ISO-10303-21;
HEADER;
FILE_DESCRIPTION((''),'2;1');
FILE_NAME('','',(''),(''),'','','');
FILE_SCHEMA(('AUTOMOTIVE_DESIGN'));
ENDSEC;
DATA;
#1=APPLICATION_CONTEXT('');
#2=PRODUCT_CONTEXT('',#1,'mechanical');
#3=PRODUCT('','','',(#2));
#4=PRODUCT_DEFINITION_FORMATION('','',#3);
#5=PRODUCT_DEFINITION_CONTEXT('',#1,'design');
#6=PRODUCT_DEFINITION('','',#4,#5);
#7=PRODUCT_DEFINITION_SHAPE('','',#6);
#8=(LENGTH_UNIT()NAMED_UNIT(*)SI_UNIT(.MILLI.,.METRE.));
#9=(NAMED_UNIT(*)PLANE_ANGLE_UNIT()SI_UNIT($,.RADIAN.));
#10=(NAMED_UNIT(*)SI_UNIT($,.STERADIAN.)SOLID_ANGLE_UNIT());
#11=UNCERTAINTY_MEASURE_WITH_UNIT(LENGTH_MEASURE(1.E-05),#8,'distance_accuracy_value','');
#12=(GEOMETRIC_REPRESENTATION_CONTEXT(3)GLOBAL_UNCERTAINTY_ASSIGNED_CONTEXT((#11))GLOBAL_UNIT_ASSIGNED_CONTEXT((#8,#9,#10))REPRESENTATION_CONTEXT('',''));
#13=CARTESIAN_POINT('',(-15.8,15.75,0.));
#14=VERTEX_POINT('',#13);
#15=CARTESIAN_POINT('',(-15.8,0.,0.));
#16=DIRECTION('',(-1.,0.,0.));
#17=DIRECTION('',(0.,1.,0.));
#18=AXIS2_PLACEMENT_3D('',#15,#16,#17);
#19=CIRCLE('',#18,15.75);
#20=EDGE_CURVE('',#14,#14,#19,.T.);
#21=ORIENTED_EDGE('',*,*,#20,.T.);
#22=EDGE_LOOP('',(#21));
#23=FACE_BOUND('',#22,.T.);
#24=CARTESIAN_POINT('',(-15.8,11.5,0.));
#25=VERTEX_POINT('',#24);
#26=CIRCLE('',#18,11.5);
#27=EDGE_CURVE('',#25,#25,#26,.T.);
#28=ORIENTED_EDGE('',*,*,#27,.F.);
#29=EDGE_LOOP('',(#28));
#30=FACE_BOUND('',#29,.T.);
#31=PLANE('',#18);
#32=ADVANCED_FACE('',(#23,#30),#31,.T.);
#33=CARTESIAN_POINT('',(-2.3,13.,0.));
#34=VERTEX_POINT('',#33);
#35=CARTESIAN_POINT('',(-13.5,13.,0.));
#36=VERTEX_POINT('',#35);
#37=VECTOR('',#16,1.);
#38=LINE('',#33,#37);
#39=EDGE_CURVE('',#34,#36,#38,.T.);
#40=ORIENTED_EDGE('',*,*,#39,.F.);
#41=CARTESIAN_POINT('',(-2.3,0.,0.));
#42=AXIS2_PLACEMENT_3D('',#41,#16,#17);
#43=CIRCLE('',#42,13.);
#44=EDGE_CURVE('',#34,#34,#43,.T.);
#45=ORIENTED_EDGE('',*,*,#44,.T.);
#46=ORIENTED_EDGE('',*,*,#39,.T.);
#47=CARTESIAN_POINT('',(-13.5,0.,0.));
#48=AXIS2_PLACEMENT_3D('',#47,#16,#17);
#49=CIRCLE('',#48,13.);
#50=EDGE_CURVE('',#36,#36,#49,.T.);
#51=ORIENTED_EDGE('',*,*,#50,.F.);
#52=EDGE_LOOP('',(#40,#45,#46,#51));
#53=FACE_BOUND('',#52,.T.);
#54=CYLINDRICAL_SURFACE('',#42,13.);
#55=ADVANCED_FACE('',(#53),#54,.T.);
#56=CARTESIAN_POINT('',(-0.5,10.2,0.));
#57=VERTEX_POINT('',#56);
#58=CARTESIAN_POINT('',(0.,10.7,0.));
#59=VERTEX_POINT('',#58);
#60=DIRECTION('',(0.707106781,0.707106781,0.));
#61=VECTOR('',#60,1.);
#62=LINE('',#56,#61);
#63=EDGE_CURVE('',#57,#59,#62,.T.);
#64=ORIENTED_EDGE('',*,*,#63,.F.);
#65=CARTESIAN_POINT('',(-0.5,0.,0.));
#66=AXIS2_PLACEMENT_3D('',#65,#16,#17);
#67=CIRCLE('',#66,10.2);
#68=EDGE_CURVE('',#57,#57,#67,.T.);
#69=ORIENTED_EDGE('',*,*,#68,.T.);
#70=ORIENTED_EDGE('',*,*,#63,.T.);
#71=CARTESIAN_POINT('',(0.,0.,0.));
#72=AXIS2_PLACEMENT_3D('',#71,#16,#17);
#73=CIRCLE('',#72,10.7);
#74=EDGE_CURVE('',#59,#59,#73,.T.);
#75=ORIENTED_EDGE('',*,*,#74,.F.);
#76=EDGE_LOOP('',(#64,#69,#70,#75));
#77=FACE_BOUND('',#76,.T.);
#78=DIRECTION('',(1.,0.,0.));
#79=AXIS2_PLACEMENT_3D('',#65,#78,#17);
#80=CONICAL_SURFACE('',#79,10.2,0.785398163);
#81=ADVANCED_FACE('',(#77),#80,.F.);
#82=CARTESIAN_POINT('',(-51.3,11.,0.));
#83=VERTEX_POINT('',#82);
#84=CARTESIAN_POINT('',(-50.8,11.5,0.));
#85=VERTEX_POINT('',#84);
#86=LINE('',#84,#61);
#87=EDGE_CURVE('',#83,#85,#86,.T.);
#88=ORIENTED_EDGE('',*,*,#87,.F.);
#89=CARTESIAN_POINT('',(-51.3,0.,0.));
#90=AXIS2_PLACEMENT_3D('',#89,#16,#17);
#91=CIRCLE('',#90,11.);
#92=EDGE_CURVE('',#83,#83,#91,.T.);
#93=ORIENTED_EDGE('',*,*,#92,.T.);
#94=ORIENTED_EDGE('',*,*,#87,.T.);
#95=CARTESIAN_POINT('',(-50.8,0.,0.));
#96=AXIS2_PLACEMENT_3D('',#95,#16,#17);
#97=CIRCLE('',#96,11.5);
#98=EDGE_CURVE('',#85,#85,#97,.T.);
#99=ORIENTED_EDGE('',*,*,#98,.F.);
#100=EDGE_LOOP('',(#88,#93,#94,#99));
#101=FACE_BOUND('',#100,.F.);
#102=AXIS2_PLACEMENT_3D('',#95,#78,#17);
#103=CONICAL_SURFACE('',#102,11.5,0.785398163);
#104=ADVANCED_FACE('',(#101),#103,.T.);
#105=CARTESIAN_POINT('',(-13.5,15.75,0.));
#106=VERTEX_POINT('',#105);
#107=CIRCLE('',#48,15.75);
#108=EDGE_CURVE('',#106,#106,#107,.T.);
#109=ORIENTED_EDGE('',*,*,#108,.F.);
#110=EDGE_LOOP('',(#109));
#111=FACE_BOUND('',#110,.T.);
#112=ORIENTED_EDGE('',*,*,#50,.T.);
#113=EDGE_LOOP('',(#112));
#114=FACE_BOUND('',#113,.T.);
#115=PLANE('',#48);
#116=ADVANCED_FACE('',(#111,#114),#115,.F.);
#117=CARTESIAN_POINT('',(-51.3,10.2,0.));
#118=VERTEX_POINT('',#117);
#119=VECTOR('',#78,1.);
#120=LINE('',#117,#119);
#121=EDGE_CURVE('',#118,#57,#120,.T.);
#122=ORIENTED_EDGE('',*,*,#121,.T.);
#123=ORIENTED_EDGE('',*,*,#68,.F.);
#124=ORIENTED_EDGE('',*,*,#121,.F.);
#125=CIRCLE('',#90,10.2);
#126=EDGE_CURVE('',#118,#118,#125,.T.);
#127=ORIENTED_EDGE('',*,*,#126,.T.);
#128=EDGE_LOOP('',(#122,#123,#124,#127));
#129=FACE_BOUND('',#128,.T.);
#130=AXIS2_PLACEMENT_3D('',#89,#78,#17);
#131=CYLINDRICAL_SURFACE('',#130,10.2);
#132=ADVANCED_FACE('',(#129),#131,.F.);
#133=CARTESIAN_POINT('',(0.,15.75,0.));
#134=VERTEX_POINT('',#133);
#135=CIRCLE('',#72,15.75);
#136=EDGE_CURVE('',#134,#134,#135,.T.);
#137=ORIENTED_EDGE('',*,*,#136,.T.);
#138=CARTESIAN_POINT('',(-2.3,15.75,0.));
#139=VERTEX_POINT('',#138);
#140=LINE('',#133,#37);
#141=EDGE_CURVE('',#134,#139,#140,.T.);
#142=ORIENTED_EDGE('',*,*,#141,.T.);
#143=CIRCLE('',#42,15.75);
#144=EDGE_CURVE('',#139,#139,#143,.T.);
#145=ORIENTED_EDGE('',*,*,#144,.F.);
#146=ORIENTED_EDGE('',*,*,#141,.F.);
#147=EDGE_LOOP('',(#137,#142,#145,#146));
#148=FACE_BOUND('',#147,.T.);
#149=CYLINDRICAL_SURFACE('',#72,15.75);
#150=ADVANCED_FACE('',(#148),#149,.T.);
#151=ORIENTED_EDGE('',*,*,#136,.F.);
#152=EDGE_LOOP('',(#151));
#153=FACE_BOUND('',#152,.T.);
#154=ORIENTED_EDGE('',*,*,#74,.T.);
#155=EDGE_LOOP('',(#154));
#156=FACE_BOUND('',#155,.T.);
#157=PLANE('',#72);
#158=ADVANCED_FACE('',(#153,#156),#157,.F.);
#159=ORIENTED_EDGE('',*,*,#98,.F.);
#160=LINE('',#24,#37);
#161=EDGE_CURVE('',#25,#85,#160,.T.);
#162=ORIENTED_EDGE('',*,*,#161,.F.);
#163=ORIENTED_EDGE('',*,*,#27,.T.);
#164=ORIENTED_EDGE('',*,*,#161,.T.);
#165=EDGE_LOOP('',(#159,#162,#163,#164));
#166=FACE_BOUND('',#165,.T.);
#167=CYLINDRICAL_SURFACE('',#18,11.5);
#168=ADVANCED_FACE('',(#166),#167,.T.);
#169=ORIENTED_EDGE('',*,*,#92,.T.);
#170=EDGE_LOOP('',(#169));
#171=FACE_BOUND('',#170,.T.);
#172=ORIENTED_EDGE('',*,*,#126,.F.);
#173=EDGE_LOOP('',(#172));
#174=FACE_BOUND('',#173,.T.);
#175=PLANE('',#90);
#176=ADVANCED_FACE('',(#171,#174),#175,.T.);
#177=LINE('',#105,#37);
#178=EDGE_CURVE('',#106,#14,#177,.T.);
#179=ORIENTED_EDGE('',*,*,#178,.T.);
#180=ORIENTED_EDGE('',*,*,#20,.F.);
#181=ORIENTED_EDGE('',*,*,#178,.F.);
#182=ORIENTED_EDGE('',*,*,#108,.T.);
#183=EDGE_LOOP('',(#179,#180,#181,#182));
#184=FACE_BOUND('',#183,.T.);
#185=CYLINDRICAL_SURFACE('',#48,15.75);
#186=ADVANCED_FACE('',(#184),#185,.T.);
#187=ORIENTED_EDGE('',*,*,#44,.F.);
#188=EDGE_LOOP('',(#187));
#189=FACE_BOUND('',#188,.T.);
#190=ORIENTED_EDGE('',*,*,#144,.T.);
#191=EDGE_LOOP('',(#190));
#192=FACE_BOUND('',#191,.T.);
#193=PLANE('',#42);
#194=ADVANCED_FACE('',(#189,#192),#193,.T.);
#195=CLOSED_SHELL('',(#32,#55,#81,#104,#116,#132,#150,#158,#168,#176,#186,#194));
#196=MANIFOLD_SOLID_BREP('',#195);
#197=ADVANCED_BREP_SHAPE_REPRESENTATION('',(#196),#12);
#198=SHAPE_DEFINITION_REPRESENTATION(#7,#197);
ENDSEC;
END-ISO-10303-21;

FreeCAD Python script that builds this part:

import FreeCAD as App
import Part
import Sketcher
from FreeCAD import Vector
Q = App.Units.Quantity


def edges_at(feature, points):
    """Names of the edges that pass closest to the given points."""
    edges = feature.Shape.Edges
    near = lambda p: min(range(len(edges)), key=lambda i: edges[i].distToShape(Part.Vertex(*p))[0])
    return sorted({f"Edge{near(p) + 1}" for p in points})


def add_polygon(sketch, points):
    """Adds a closed chain of lines whose ends are joined by coincident constraints."""
    first, n = sketch.GeometryCount, len(points)
    for a, b in zip(points, points[1:] + points[:1]):
        sketch.addGeometry(Part.LineSegment(App.Vector(*a, 0), App.Vector(*b, 0)), False)
    for i in range(n):
        sketch.addConstraint(Sketcher.Constraint("Coincident", first + i, 2, first + (i + 1) % n, 1))

doc = App.newDocument("Part")
body = doc.addObject("PartDesign::Body", "Body")

# Sketch on XY plane
sketch1 = body.newObject("Sketcher::SketchObject", "Sketch")
sketch1.AttachmentSupport = (doc.getObject("XY_Plane"), [""])
sketch1.MapMode = "FlatFace"
add_polygon(sketch1, [(-51.3, 11.5), (-51.3, 10.2), (0, 10.2), (0, 15.8), (-2.3, 15.8), (-2.3, 13), (-13.5, 13), (-13.5, 15.8), (-15.8, 15.8), (-15.8, 11.5)])  # lines 0-9
sketch1.addConstraint(Sketcher.Constraint("Vertical", 0))
sketch1.addConstraint(Sketcher.Constraint("Horizontal", 1))
sketch1.addConstraint(Sketcher.Constraint("Vertical", 2))
sketch1.addConstraint(Sketcher.Constraint("Horizontal", 3))
sketch1.addConstraint(Sketcher.Constraint("Vertical", 4))
sketch1.addConstraint(Sketcher.Constraint("Horizontal", 5))
sketch1.addConstraint(Sketcher.Constraint("Vertical", 6))
sketch1.addConstraint(Sketcher.Constraint("Horizontal", 7))
sketch1.addConstraint(Sketcher.Constraint("Vertical", 8))
sketch1.addConstraint(Sketcher.Constraint("Horizontal", 9))
sketch1.addConstraint(Sketcher.Constraint("PointOnObject", 1, 2, -2))
sketch1.addConstraint(Sketcher.Constraint("Horizontal", 3, 2, 6, 2))
sketch1.addConstraint(Sketcher.Constraint("Equal", 3, 7))
sketch1.addConstraint(Sketcher.Constraint("DistanceX", 1, 1, 1, 2, Q("51.3 mm")))
sketch1.addConstraint(Sketcher.Constraint("DistanceX", 3, 2, 3, 1, Q("2.3 mm")))
sketch1.addConstraint(Sketcher.Constraint("DistanceX", 5, 2, 5, 1, Q("11.2 mm")))
sketch1.addConstraint(Sketcher.Constraint("DistanceY", 0, 2, 0, 1, Q("1.3 mm")))
sketch1.addConstraint(Sketcher.Constraint("DistanceY", -1, 1, 4, 2, Q("13 mm")))
sketch1.addConstraint(Sketcher.Constraint("DistanceY", 2, 1, 2, 2, Q("5.55 mm")))
sketch1.addConstraint(Sketcher.Constraint("DistanceY", 4, 2, 4, 1, Q("2.75 mm")))
revolution = body.newObject("PartDesign::Revolution", "Revolution")
revolution.Profile = sketch1
revolution.ReferenceAxis = (sketch1, ["H_Axis"])
revolution.Angle = 360
doc.recompute()

chamfer = body.newObject("PartDesign::Chamfer", "Chamfer")
chamfer.Base = (revolution, edges_at(revolution, [(-51.3, -11.5, 0), (0, -10.2, 0)]))
chamfer.Size = 0.5

doc.recompute()
